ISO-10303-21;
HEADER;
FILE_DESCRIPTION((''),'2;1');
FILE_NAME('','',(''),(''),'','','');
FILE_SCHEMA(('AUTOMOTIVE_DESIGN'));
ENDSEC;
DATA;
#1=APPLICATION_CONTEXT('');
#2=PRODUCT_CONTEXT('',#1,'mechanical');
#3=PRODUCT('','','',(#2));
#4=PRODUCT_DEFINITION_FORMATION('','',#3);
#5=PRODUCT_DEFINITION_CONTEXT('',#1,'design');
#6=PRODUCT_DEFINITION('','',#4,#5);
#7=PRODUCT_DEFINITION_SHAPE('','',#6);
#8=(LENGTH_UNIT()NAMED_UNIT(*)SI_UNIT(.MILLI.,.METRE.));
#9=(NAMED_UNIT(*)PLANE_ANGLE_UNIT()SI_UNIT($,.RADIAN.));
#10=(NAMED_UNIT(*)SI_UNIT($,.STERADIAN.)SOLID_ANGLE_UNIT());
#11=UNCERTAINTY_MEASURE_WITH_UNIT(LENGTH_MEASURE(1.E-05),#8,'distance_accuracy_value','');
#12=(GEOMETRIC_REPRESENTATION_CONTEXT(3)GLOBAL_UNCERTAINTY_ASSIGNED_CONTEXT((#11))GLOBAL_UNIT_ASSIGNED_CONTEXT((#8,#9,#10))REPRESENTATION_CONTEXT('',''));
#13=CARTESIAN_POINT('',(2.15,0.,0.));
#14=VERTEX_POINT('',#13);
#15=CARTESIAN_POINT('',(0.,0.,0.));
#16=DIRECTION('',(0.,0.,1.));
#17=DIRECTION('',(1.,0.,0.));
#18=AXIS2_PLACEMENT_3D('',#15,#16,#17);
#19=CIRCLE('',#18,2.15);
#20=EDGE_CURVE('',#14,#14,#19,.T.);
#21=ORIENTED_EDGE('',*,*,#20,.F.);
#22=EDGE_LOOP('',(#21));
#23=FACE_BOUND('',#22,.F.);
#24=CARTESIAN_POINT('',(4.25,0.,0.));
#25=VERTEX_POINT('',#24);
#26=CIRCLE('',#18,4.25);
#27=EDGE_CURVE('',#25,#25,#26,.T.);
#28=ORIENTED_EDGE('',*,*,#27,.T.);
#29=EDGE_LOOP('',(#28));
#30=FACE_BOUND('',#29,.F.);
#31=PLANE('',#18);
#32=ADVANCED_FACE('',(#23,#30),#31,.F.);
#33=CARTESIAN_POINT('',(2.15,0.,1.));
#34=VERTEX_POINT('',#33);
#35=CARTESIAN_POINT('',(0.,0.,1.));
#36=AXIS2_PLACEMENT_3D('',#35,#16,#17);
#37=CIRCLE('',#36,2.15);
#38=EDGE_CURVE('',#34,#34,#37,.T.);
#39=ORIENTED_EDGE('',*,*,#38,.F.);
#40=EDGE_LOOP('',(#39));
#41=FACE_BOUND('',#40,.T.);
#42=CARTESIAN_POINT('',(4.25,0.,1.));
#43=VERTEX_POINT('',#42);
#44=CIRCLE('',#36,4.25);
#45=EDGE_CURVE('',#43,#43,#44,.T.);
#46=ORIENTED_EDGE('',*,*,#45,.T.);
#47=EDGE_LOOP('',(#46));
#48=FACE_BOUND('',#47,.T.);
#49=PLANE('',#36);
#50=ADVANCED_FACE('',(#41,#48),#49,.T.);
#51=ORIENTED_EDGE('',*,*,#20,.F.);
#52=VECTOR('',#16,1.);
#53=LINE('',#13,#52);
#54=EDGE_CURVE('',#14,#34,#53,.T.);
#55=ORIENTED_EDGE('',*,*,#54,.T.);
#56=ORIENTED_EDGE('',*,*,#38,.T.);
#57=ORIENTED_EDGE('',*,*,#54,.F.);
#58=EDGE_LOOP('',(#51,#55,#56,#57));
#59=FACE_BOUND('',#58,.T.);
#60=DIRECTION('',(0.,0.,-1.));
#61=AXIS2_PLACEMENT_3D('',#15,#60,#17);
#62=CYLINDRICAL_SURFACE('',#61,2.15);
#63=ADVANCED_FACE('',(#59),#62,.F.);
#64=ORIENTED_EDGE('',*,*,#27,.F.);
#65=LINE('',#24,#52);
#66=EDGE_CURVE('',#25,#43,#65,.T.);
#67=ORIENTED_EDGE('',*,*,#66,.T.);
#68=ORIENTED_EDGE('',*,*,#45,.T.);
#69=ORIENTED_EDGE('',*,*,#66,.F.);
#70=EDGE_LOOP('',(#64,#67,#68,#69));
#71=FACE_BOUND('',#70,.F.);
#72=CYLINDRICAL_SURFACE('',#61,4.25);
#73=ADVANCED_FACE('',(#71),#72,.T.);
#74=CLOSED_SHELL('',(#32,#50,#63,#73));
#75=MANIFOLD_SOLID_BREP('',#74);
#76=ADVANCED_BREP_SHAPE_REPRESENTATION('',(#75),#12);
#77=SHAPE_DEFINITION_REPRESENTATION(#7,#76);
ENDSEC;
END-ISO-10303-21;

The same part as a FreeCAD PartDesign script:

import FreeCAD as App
import Part
import Sketcher
Q = App.Units.Quantity

doc = App.newDocument("Part")
body = doc.addObject("PartDesign::Body", "Body")

# Sketch on XY plane
sketch1 = body.newObject("Sketcher::SketchObject", "Sketch")
sketch1.AttachmentSupport = (doc.getObject("XY_Plane"), [""])
sketch1.MapMode = "FlatFace"
sketch1.addGeometry([
    Part.Circle(App.Vector(0, 0, 0), App.Vector(0, 0, 1), 4.2),
    Part.Circle(App.Vector(0, 0, 0), App.Vector(0, 0, 1), 2.1),
], False)
sketch1.addConstraint([
    Sketcher.Constraint("Coincident", 0, 3, -1, 1),
    Sketcher.Constraint("Coincident", 1, 3, -1, 1),
    Sketcher.Constraint("Diameter", 0, Q("8.5 mm")),
    Sketcher.Constraint("Diameter", 1, Q("4.3 mm")),
])
pad1 = body.newObject("PartDesign::Pad", "Pad")
pad1.Profile = sketch1
pad1.Length = 1

doc.recompute()
